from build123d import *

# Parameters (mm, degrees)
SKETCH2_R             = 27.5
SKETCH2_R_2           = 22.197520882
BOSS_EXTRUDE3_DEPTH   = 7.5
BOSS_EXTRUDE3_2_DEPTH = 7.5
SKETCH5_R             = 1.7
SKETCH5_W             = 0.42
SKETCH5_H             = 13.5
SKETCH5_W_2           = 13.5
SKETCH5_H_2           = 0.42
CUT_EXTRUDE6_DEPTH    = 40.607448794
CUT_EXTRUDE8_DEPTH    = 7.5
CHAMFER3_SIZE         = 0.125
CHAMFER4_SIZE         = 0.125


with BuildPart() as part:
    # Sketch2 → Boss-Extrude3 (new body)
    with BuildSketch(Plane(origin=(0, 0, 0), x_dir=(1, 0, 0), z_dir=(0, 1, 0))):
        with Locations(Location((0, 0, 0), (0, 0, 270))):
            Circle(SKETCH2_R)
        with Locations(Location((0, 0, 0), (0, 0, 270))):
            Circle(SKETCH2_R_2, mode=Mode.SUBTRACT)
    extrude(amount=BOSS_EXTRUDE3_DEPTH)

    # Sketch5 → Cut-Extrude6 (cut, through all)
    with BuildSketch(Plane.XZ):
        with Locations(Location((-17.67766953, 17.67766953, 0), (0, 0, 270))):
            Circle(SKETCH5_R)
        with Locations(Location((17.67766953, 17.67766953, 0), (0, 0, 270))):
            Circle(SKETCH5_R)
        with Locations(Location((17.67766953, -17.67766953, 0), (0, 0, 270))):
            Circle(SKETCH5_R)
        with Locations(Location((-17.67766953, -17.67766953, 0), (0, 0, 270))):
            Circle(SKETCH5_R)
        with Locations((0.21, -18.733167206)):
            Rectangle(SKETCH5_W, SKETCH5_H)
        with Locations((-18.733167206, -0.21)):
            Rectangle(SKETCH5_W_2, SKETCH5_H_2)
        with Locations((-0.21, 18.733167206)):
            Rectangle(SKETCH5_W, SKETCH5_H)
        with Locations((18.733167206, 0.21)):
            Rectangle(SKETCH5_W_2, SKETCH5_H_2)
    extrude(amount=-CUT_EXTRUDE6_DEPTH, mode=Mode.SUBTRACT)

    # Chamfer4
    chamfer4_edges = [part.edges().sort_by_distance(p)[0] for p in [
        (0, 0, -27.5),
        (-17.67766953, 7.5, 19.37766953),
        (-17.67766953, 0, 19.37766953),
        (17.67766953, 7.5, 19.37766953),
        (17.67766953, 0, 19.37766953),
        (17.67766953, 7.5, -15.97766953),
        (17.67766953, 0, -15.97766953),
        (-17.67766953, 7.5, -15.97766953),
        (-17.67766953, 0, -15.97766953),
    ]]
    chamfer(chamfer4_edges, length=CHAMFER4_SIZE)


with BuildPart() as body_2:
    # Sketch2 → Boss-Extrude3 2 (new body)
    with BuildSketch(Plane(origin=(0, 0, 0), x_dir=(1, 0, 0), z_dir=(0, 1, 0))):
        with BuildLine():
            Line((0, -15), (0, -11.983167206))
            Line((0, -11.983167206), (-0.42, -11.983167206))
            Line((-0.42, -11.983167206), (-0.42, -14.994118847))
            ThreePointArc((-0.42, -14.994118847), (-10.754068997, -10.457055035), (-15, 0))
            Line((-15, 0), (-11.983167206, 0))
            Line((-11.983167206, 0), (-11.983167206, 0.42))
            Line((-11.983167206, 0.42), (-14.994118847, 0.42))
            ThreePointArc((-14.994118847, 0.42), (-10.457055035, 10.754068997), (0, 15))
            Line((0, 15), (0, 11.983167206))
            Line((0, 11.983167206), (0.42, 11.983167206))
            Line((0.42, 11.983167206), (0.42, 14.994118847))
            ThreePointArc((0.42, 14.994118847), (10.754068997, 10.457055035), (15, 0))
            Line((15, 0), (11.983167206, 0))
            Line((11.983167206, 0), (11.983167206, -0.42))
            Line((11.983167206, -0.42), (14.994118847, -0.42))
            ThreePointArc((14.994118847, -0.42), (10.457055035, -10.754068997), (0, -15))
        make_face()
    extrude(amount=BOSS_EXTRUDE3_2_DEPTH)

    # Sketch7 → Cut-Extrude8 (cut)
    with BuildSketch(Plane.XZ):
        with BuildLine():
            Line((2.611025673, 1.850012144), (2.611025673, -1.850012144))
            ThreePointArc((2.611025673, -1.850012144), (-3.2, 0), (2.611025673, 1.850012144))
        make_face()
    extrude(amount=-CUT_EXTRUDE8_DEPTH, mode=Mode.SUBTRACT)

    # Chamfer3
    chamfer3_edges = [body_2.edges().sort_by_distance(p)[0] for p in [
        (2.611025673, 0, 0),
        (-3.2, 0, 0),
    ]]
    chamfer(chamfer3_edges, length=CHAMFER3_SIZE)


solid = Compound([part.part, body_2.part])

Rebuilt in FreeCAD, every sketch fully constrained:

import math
import FreeCAD as App
import Part
import Sketcher
Q = App.Units.Quantity


def edges_at(feature, points):
    """Names of the edges that pass closest to the given points."""
    edges = feature.Shape.Edges
    near = lambda p: min(range(len(edges)), key=lambda i: edges[i].distToShape(Part.Vertex(*p))[0])
    return sorted({f"Edge{near(p) + 1}" for p in points})


def add_polygon(sketch, points):
    """Adds a closed chain of lines whose ends are joined by coincident constraints."""
    first, n = sketch.GeometryCount, len(points)
    for a, b in zip(points, points[1:] + points[:1]):
        sketch.addGeometry(Part.LineSegment(App.Vector(*a, 0), App.Vector(*b, 0)), False)
    for i in range(n):
        sketch.addConstraint(Sketcher.Constraint("Coincident", first + i, 2, first + (i + 1) % n, 1))

doc = App.newDocument("Part")
params = doc.addObject("Spreadsheet::Sheet", "Params")
for row, (alias, value) in enumerate([
    ("sketch1_diameter", "55 mm"),
    ("pad1_length", "7.5 mm"),
    ("sketch2_diameter", "3.4 mm"),
    ("sketch2_width", "13.5 mm"),
    ("sketch2_width2", "0.42 mm"),
    ("chamfer_size", "0.125 mm"),
    ("sketch3_radius", "15 mm"),
    ("sketch3_width", "0.42 mm"),
    ("pad2_length", "7.5 mm"),
    ("sketch4_radius", "3.2 mm"),
    ("pocket2_length", "7.5 mm"),
    ("chamfer2_size", "0.125 mm"),
], start=1):
    params.set(f"A{row}", alias)
    params.set(f"B{row}", "=" + value)
    params.setAlias(f"B{row}", alias)

body = doc.addObject("PartDesign::Body", "Body")

# Sketch on XZ plane
sketch1 = doc.addObject("Sketcher::SketchObject", "Sketch")
body.addObject(sketch1)
sketch1.AttachmentSupport = (doc.XZ_Plane, [""])
sketch1.MapMode = "FlatFace"
sketch1.addGeometry([
    Part.Circle(App.Vector(0, 0, 0), App.Vector(0, 0, 1), 28),
    Part.Circle(App.Vector(0, 0, 0), App.Vector(0, 0, 1), 22),
], False)
sketch1.addConstraint([
    Sketcher.Constraint("Coincident", 0, 3, -1, 1),
    Sketcher.Constraint("Coincident", 1, 3, -1, 1),
    Sketcher.Constraint("Diameter", 0, Q("55 mm")),
    Sketcher.Constraint("Diameter", 1, Q("44.395042 mm")),
])
sketch1.setExpression("Constraints[2]", "Params.sketch1_diameter")
pad1 = doc.addObject("PartDesign::Pad", "Pad")
body.addObject(pad1)
pad1.Profile = sketch1
pad1.setExpression("Length", "Params.pad1_length")
pad1.Reversed = True

# Sketch on XZ plane
sketch2 = doc.addObject("Sketcher::SketchObject", "Sketch001")
body.addObject(sketch2)
sketch2.AttachmentSupport = (doc.XZ_Plane, [""])
sketch2.MapMode = "FlatFace"
sketch2.addGeometry(Part.Circle(App.Vector(-17.68, 17.68, 0), App.Vector(0, 0, 1), 1.7), False)  # 0
sketch2.addGeometry(Part.Circle(App.Vector(17.68, 17.68, 0), App.Vector(0, 0, 1), 1.7), False)  # 1
sketch2.addGeometry(Part.Circle(App.Vector(17.68, -17.68, 0), App.Vector(0, 0, 1), 1.7), False)  # 2
sketch2.addGeometry(Part.Circle(App.Vector(-17.68, -17.68, 0), App.Vector(0, 0, 1), 1.7), False)  # 3
add_polygon(sketch2, [(0, -11.98), (0, -25.48), (0.42, -25.48), (0.42, -11.98)])  # lines 4-7
add_polygon(sketch2, [(-25.48, 0), (-25.48, -0.42), (-11.98, -0.42), (-11.98, 0)])  # lines 8-11
add_polygon(sketch2, [(-0.42, 25.48), (-0.42, 11.98), (0, 11.98), (0, 25.48)])  # lines 12-15
add_polygon(sketch2, [(11.98, 0.42), (11.98, 0), (25.48, 0), (25.48, 0.42)])  # lines 16-19
sketch2.addConstraint([
    Sketcher.Constraint("Vertical", 4),
    Sketcher.Constraint("Horizontal", 5),
    Sketcher.Constraint("Vertical", 6),
    Sketcher.Constraint("Horizontal", 7),
    Sketcher.Constraint("Vertical", 8),
    Sketcher.Constraint("Horizontal", 9),
    Sketcher.Constraint("Vertical", 10),
    Sketcher.Constraint("Horizontal", 11),
    Sketcher.Constraint("Vertical", 12),
    Sketcher.Constraint("Horizontal", 13),
    Sketcher.Constraint("Vertical", 14),
    Sketcher.Constraint("Horizontal", 15),
    Sketcher.Constraint("Vertical", 16),
    Sketcher.Constraint("Horizontal", 17),
    Sketcher.Constraint("Vertical", 18),
    Sketcher.Constraint("Horizontal", 19),
    Sketcher.Constraint("Equal", 0, 1),
    Sketcher.Constraint("Equal", 1, 2),
    Sketcher.Constraint("Equal", 2, 3),
    Sketcher.Constraint("Symmetric", 0, 3, 2, 3, -1, 1),
    Sketcher.Constraint("Symmetric", 1, 3, 3, 3, -1, 1),
    Sketcher.Constraint("Symmetric", 6, 2, 12, 2, -1, 1),
    Sketcher.Constraint("Symmetric", 4, 2, 14, 2, -1, 1),
    Sketcher.Constraint("Symmetric", 10, 2, 16, 2, -1, 1),
    Sketcher.Constraint("Symmetric", 8, 2, 18, 2, -1, 1),
    Sketcher.Constraint("Symmetric", 0, 3, 1, 3, -2),
    Sketcher.Constraint("PointOnObject", 4, 2, -2),
    Sketcher.Constraint("PointOnObject", 10, 2, -1),
    Sketcher.Constraint("Equal", 19, 4),
    Sketcher.Constraint("Equal", 15, 8),
    Sketcher.Constraint("Diameter", 0, Q("3.4 mm")),
    Sketcher.Constraint("DistanceX", 9, 1, 9, 2, Q("13.5 mm")),
    Sketcher.Constraint("DistanceX", 5, 1, 5, 2, Q("0.42 mm")),
    Sketcher.Constraint("DistanceX", 0, 3, -1, 1, Q("17.67767 mm")),
    Sketcher.Constraint("DistanceY", -1, 1, 0, 3, Q("17.67767 mm")),
    Sketcher.Constraint("DistanceY", 4, 2, -1, 1, Q("25.483167 mm")),
    Sketcher.Constraint("DistanceX", 8, 2, -1, 1, Q("25.483167 mm")),
])
sketch2.setExpression("Constraints[46]", "Params.sketch2_diameter")
sketch2.setExpression("Constraints[47]", "Params.sketch2_width")
sketch2.setExpression("Constraints[48]", "Params.sketch2_width2")
pocket1 = doc.addObject("PartDesign::Pocket", "Pocket")
body.addObject(pocket1)
pocket1.Profile = sketch2
pocket1.Type = "ThroughAll"
doc.recompute()

chamfer = doc.addObject("PartDesign::Chamfer", "Chamfer")
body.addObject(chamfer)
chamfer.Base = (pocket1, edges_at(pocket1, [
    (0, 0, -27.5),
    (-17.678, 7.5, 19.378),
    (-17.678, 0, 19.378),
    (17.678, 7.5, 19.378),
    (17.678, 0, 19.378),
    (17.678, 7.5, -15.978),
    (17.678, 0, -15.978),
    (-17.678, 7.5, -15.978),
    (-17.678, 0, -15.978),
]))
chamfer.setExpression("Size", "Params.chamfer_size")
body2 = doc.addObject("PartDesign::Body", "Body001")

# Sketch on XZ plane
sketch3 = doc.addObject("Sketcher::SketchObject", "Sketch002")
body2.addObject(sketch3)
sketch3.AttachmentSupport = (doc.getObject("XZ_Plane001"), [""])
sketch3.MapMode = "FlatFace"
sketch3.addGeometry([
    Part.LineSegment(App.Vector(0, 11.98, 0), App.Vector(0, 15, 0)),  # 0
    Part.ArcOfCircle(Part.Circle(App.Vector(0, 0, 0), App.Vector(0, 0, 1), 15), math.radians(2), math.radians(90)),  # 1
    Part.LineSegment(App.Vector(14.99, 0.42, 0), App.Vector(11.98, 0.42, 0)),  # 2
    Part.LineSegment(App.Vector(11.98, 0.42, 0), App.Vector(11.98, 0, 0)),  # 3
    Part.LineSegment(App.Vector(11.98, 0, 0), App.Vector(15, 0, 0)),  # 4
    Part.ArcOfCircle(Part.Circle(App.Vector(0, 0, 0), App.Vector(0, 0, 1), 15), math.radians(-88), math.radians(0)),  # 5
    Part.LineSegment(App.Vector(0.42, -14.99, 0), App.Vector(0.42, -11.98, 0)),  # 6
    Part.LineSegment(App.Vector(0.42, -11.98, 0), App.Vector(0, -11.98, 0)),  # 7
    Part.LineSegment(App.Vector(0, -11.98, 0), App.Vector(0, -15, 0)),  # 8
    Part.ArcOfCircle(Part.Circle(App.Vector(0, 0, 0), App.Vector(0, 0, 1), 15), math.radians(-178), math.radians(-90)),  # 9
    Part.LineSegment(App.Vector(-14.99, -0.42, 0), App.Vector(-11.98, -0.42, 0)),  # 10
    Part.LineSegment(App.Vector(-11.98, -0.42, 0), App.Vector(-11.98, 0, 0)),  # 11
    Part.LineSegment(App.Vector(-11.98, 0, 0), App.Vector(-15, 0, 0)),  # 12
    Part.ArcOfCircle(Part.Circle(App.Vector(0, 0, 0), App.Vector(0, 0, 1), 15), math.radians(92), math.radians(180)),  # 13
    Part.LineSegment(App.Vector(-0.42, 14.99, 0), App.Vector(-0.42, 11.98, 0)),  # 14
    Part.LineSegment(App.Vector(-0.42, 11.98, 0), App.Vector(0, 11.98, 0)),  # 15
], False)
sketch3.addConstraint([
    Sketcher.Constraint("Coincident", 0, 2, 1, 2),
    Sketcher.Constraint("Coincident", 1, 1, 2, 1),
    Sketcher.Constraint("Coincident", 2, 2, 3, 1),
    Sketcher.Constraint("Coincident", 3, 2, 4, 1),
    Sketcher.Constraint("Coincident", 4, 2, 5, 2),
    Sketcher.Constraint("Coincident", 5, 1, 6, 1),
    Sketcher.Constraint("Coincident", 6, 2, 7, 1),
    Sketcher.Constraint("Coincident", 7, 2, 8, 1),
    Sketcher.Constraint("Coincident", 8, 2, 9, 2),
    Sketcher.Constraint("Coincident", 9, 1, 10, 1),
    Sketcher.Constraint("Coincident", 10, 2, 11, 1),
    Sketcher.Constraint("Coincident", 11, 2, 12, 1),
    Sketcher.Constraint("Coincident", 12, 2, 13, 2),
    Sketcher.Constraint("Coincident", 13, 1, 14, 1),
    Sketcher.Constraint("Coincident", 14, 2, 15, 1),
    Sketcher.Constraint("Coincident", 15, 2, 0, 1),
    Sketcher.Constraint("Vertical", 0),
    Sketcher.Constraint("Horizontal", 2),
    Sketcher.Constraint("Vertical", 3),
    Sketcher.Constraint("Horizontal", 4),
    Sketcher.Constraint("Vertical", 6),
    Sketcher.Constraint("Horizontal", 7),
    Sketcher.Constraint("Vertical", 8),
    Sketcher.Constraint("Horizontal", 10),
    Sketcher.Constraint("Vertical", 11),
    Sketcher.Constraint("Horizontal", 12),
    Sketcher.Constraint("Vertical", 14),
    Sketcher.Constraint("Horizontal", 15),
    Sketcher.Constraint("Coincident", 1, 3, -1, 1),
    Sketcher.Constraint("Coincident", 5, 3, -1, 1),
    Sketcher.Constraint("Coincident", 9, 3, -1, 1),
    Sketcher.Constraint("Coincident", 13, 3, -1, 1),
    Sketcher.Constraint("Equal", 1, 5),
    Sketcher.Constraint("Equal", 5, 9),
    Sketcher.Constraint("Equal", 9, 13),
    Sketcher.Constraint("Symmetric", 2, 2, 10, 2, -1, 1),
    Sketcher.Constraint("Symmetric", 6, 2, 14, 2, -1, 1),
    Sketcher.Constraint("PointOnObject", 0, 2, -2),
    Sketcher.Constraint("PointOnObject", 3, 2, -1),
    Sketcher.Constraint("PointOnObject", 7, 2, -2),
    Sketcher.Constraint("PointOnObject", 11, 2, -1),
    Sketcher.Constraint("Equal", 12, 0),
    Sketcher.Constraint("Equal", 15, 3),
    Sketcher.Constraint("Radius", 1, Q("15 mm")),
    Sketcher.Constraint("DistanceX", 7, 2, 7, 1, Q("0.42 mm")),
    Sketcher.Constraint("DistanceX", 2, 2, 2, 1, Q("3.010952 mm")),
])
sketch3.setExpression("Constraints[43]", "Params.sketch3_radius")
sketch3.setExpression("Constraints[44]", "Params.sketch3_width")
pad2 = doc.addObject("PartDesign::Pad", "Pad001")
body2.addObject(pad2)
pad2.Profile = sketch3
pad2.setExpression("Length", "Params.pad2_length")
pad2.Reversed = True

# Sketch on XZ plane
sketch4 = doc.addObject("Sketcher::SketchObject", "Sketch003")
body2.addObject(sketch4)
sketch4.AttachmentSupport = (doc.getObject("XZ_Plane001"), [""])
sketch4.MapMode = "FlatFace"
sketch4.addGeometry([
    Part.LineSegment(App.Vector(2.6, -1.9, 0), App.Vector(2.6, 1.9, 0)),
    Part.ArcOfCircle(Part.Circle(App.Vector(0, 0, 0), App.Vector(0, 0, 1), 3.2), math.radians(35), math.radians(325)),
], False)
sketch4.addConstraint([
    Sketcher.Constraint("Coincident", 0, 1, 1, 2),
    Sketcher.Constraint("Coincident", 1, 1, 0, 2),
    Sketcher.Constraint("Vertical", 0),
    Sketcher.Constraint("Coincident", 1, 3, -1, 1),
    Sketcher.Constraint("Radius", 1, Q("3.2 mm")),
    Sketcher.Constraint("DistanceY", 0, 1, 0, 2, Q("3.700024 mm")),
])
sketch4.setExpression("Constraints[4]", "Params.sketch4_radius")
pocket2 = doc.addObject("PartDesign::Pocket", "Pocket001")
body2.addObject(pocket2)
pocket2.Profile = sketch4
pocket2.setExpression("Length", "Params.pocket2_length")
doc.recompute()

chamfer2 = doc.addObject("PartDesign::Chamfer", "Chamfer001")
body2.addObject(chamfer2)
chamfer2.Base = (pocket2, edges_at(pocket2, [(2.611, 0, 0), (-3.2, 0, 0)]))
chamfer2.setExpression("Size", "Params.chamfer2_size")

doc.recompute()
